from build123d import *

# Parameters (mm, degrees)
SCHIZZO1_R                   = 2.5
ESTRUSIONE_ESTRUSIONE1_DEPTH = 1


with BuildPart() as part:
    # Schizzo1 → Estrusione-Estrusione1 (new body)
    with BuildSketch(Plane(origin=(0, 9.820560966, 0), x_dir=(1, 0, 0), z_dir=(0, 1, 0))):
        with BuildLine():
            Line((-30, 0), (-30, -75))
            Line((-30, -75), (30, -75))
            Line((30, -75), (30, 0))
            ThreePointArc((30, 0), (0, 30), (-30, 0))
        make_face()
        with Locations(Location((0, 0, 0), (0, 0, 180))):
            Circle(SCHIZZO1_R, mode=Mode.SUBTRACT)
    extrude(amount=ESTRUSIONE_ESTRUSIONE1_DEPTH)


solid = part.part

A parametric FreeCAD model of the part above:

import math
import FreeCAD as App
import Part
import Sketcher

V = App.Vector
Q = App.Units.Quantity

doc = App.newDocument("Part")
body = doc.addObject("PartDesign::Body", "Body")

# Sketch on XZ plane
sketch1 = body.newObject("Sketcher::SketchObject", "Sketch")
sketch1.AttachmentSupport = (doc.getObject("XZ_Plane"), [""])
sketch1.MapMode = "FlatFace"
sketch1.AttachmentOffset = App.Placement(V(0, 0, -9.820561), App.Rotation())
sketch1.addGeometry(Part.LineSegment(V(-30, 0, 0), V(-30, 75, 0)), False)
sketch1.addGeometry(Part.LineSegment(V(-30, 75, 0), V(30, 75, 0)), False)
sketch1.addGeometry(Part.LineSegment(V(30, 75, 0), V(30, 0, 0)), False)
sketch1.addGeometry(Part.ArcOfCircle(Part.Circle(V(0, 0, 0), V(0, 0, 1), 30), math.radians(180), math.radians(360)), False)
sketch1.addGeometry(Part.Circle(V(0, 0, 0), V(0, 0, 1), 2.5), False)
sketch1.addConstraint(Sketcher.Constraint("Coincident", 0, 2, 1, 1))
sketch1.addConstraint(Sketcher.Constraint("Coincident", 1, 2, 2, 1))
sketch1.addConstraint(Sketcher.Constraint("Tangent", 2, 2, 3, 2))
sketch1.addConstraint(Sketcher.Constraint("Tangent", 3, 1, 0, 1))
sketch1.addConstraint(Sketcher.Constraint("Vertical", 0))
sketch1.addConstraint(Sketcher.Constraint("Horizontal", 1))
sketch1.addConstraint(Sketcher.Constraint("Vertical", 2))
sketch1.addConstraint(Sketcher.Constraint("Coincident", 3, 3, -1, 1))
sketch1.addConstraint(Sketcher.Constraint("Coincident", 4, 3, -1, 1))
sketch1.addConstraint(Sketcher.Constraint("Diameter", 4, Q("5 mm")))
sketch1.addConstraint(Sketcher.Constraint("Radius", 3, Q("30 mm")))
sketch1.addConstraint(Sketcher.Constraint("DistanceY", 0, 1, 0, 2, Q("75 mm")))
pad1 = body.newObject("PartDesign::Pad", "Pad")
pad1.Profile = sketch1
pad1.Length = 1
pad1.Reversed = True

doc.recompute()
